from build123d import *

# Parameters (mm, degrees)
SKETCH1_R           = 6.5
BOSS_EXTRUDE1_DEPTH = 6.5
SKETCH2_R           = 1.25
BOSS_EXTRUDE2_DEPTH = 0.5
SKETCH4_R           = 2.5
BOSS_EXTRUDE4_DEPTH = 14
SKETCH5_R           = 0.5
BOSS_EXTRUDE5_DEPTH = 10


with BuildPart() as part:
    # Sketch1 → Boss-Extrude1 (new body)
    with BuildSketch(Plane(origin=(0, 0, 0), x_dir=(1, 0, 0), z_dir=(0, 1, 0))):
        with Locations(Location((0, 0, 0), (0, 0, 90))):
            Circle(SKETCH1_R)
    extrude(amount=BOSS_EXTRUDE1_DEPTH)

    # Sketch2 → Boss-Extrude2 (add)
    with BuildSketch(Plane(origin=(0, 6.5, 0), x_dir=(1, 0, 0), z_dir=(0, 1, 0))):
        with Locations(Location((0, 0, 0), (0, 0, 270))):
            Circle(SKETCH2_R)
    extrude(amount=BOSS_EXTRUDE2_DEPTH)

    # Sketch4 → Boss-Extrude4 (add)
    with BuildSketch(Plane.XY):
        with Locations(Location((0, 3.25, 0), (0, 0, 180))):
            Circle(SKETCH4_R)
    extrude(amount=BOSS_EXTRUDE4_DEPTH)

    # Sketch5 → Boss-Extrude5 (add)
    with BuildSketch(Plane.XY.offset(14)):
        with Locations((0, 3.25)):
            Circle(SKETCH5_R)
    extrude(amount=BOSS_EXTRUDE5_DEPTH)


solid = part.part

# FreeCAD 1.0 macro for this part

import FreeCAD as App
import Part
import Sketcher
from FreeCAD import Vector

doc = App.newDocument("Part")
body = doc.addObject("PartDesign::Body", "Body")

# Sketch on XZ plane
sketch1 = doc.addObject("Sketcher::SketchObject", "Sketch")
body.addObject(sketch1)
sketch1.AttachmentSupport = (doc.XZ_Plane, [""])
sketch1.MapMode = "FlatFace"
sketch1.addGeometry(Part.Circle(Vector(0, 0, 0), Vector(0, 0, 1), 6), False)
sketch1.addConstraint([
    Sketcher.Constraint("Coincident", 0, 3, -1, 1),
    Sketcher.Constraint("Diameter", 0, 13.0),
])
pad1 = doc.addObject("PartDesign::Pad", "Pad")
body.addObject(pad1)
pad1.Profile = sketch1
pad1.Length = 6.5
pad1.Reversed = True

# Sketch on XZ plane
sketch2 = doc.addObject("Sketcher::SketchObject", "Sketch001")
body.addObject(sketch2)
sketch2.AttachmentSupport = (doc.XZ_Plane, [""])
sketch2.MapMode = "FlatFace"
sketch2.AttachmentOffset = App.Placement(Vector(0, 0, -6.5), App.Rotation())
sketch2.addGeometry(Part.Circle(Vector(0, 0, 0), Vector(0, 0, 1), 1.2), False)
sketch2.addConstraint([
    Sketcher.Constraint("Coincident", 0, 3, -1, 1),
    Sketcher.Constraint("Diameter", 0, 2.5),
])
pad2 = doc.addObject("PartDesign::Pad", "Pad001")
body.addObject(pad2)
pad2.Profile = sketch2
pad2.Length = 0.5
pad2.Reversed = True

# Sketch on XY plane
sketch3 = doc.addObject("Sketcher::SketchObject", "Sketch002")
body.addObject(sketch3)
sketch3.AttachmentSupport = (doc.XY_Plane, [""])
sketch3.MapMode = "FlatFace"
sketch3.addGeometry(Part.Circle(Vector(0, 3.2, 0), Vector(0, 0, 1), 2.5), False)
sketch3.addConstraint([
    Sketcher.Constraint("PointOnObject", 0, 3, -2),
    Sketcher.Constraint("Diameter", 0, 5.0),
    Sketcher.Constraint("DistanceY", -1, 1, 0, 3, 3.25),
])
pad3 = doc.addObject("PartDesign::Pad", "Pad002")
body.addObject(pad3)
pad3.Profile = sketch3
pad3.Length = 14

# Sketch on XY plane
sketch4 = doc.addObject("Sketcher::SketchObject", "Sketch003")
body.addObject(sketch4)
sketch4.AttachmentSupport = (doc.XY_Plane, [""])
sketch4.MapMode = "FlatFace"
sketch4.AttachmentOffset = App.Placement(Vector(0, 0, 14), App.Rotation())
sketch4.addGeometry(Part.Circle(Vector(0, 3.2, 0), Vector(0, 0, 1), 0.5), False)
sketch4.addConstraint([
    Sketcher.Constraint("PointOnObject", 0, 3, -2),
    Sketcher.Constraint("Diameter", 0, 1.0),
    Sketcher.Constraint("DistanceY", -1, 1, 0, 3, 3.25),
])
pad4 = doc.addObject("PartDesign::Pad", "Pad003")
body.addObject(pad4)
pad4.Profile = sketch4
pad4.Length = 10

doc.recompute()
